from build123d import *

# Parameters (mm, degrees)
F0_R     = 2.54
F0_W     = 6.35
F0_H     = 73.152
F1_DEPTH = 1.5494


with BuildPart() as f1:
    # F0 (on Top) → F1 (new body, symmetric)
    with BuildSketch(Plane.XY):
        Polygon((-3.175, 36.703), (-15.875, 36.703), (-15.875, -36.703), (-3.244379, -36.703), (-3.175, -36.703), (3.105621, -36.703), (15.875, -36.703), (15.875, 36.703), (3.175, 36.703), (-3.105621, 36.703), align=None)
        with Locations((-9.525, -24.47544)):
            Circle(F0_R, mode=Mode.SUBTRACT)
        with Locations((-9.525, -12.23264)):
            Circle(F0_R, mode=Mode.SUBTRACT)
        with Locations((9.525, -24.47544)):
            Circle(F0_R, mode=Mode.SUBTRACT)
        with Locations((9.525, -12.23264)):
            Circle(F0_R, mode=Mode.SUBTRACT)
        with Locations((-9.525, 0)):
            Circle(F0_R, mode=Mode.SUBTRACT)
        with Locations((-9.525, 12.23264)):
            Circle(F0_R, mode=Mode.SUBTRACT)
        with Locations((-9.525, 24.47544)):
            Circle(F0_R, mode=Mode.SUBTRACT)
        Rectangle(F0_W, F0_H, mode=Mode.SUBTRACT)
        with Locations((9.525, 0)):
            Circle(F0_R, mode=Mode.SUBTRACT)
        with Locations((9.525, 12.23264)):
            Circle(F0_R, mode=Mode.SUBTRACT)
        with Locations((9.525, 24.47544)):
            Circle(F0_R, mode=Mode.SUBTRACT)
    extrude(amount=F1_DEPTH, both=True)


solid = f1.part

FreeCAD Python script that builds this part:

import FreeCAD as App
import Part
import Sketcher
from FreeCAD import Vector
Q = App.Units.Quantity

doc = App.newDocument("Part")
params = doc.addObject("Spreadsheet::Sheet", "Params")
for row, (alias, value) in enumerate([
    ("sketch1_diameter", "0.2 in"),
    ("sketch1_width", "1.25 in"),
    ("sketch1_width2", "0.25 in"),
    ("sketch1_height", "2.89 in"),
    ("sketch1_height2", "2.88 in"),
    ("pad1_length", "0.122 in"),
], start=1):
    params.set(f"A{row}", alias)
    params.set(f"B{row}", "=" + value)
    params.setAlias(f"B{row}", alias)

body = doc.addObject("PartDesign::Body", "Body")

# Sketch on XY plane
sketch1 = body.newObject("Sketcher::SketchObject", "Sketch")
sketch1.AttachmentSupport = (doc.getObject("XY_Plane"), [""])
sketch1.MapMode = "FlatFace"
sketch1.addGeometry(Part.LineSegment(Vector(-15.875, 36.703, 0), Vector(-15.875, -36.703, 0)), False)
sketch1.addGeometry(Part.LineSegment(Vector(-15.875, -36.703, 0), Vector(15.875, -36.703, 0)), False)
sketch1.addGeometry(Part.LineSegment(Vector(15.875, -36.703, 0), Vector(15.875, 36.703, 0)), False)
sketch1.addGeometry(Part.LineSegment(Vector(15.875, 36.703, 0), Vector(-15.875, 36.703, 0)), False)
sketch1.addGeometry(Part.Circle(Vector(-9.525, -24.47544, 0), Vector(0, 0, 1), 2.54), False)
sketch1.addGeometry(Part.Circle(Vector(-9.525, -12.23264, 0), Vector(0, 0, 1), 2.54), False)
sketch1.addGeometry(Part.Circle(Vector(9.525, -24.47544, 0), Vector(0, 0, 1), 2.54), False)
sketch1.addGeometry(Part.Circle(Vector(9.525, -12.23264, 0), Vector(0, 0, 1), 2.54), False)
sketch1.addGeometry(Part.Circle(Vector(-9.525, 0, 0), Vector(0, 0, 1), 2.54), False)
sketch1.addGeometry(Part.Circle(Vector(-9.525, 12.23264, 0), Vector(0, 0, 1), 2.54), False)
sketch1.addGeometry(Part.LineSegment(Vector(3.175, -36.576, 0), Vector(-3.175, -36.576, 0)), False)
sketch1.addGeometry(Part.LineSegment(Vector(-3.175, -36.576, 0), Vector(-3.175, 36.576, 0)), False)
sketch1.addGeometry(Part.LineSegment(Vector(-3.175, 36.576, 0), Vector(3.175, 36.576, 0)), False)
sketch1.addGeometry(Part.LineSegment(Vector(3.175, 36.576, 0), Vector(3.175, -36.576, 0)), False)
sketch1.addGeometry(Part.Circle(Vector(-9.525, 24.47544, 0), Vector(0, 0, 1), 2.54), False)
sketch1.addGeometry(Part.Circle(Vector(9.525, 0, 0), Vector(0, 0, 1), 2.54), False)
sketch1.addGeometry(Part.Circle(Vector(9.525, 12.23264, 0), Vector(0, 0, 1), 2.54), False)
sketch1.addGeometry(Part.Circle(Vector(9.525, 24.47544, 0), Vector(0, 0, 1), 2.54), False)
sketch1.addConstraint(Sketcher.Constraint("Coincident", 0, 2, 1, 1))
sketch1.addConstraint(Sketcher.Constraint("Coincident", 1, 2, 2, 1))
sketch1.addConstraint(Sketcher.Constraint("Coincident", 2, 2, 3, 1))
sketch1.addConstraint(Sketcher.Constraint("Coincident", 3, 2, 0, 1))
sketch1.addConstraint(Sketcher.Constraint("Coincident", 10, 2, 11, 1))
sketch1.addConstraint(Sketcher.Constraint("Coincident", 11, 2, 12, 1))
sketch1.addConstraint(Sketcher.Constraint("Coincident", 12, 2, 13, 1))
sketch1.addConstraint(Sketcher.Constraint("Coincident", 13, 2, 10, 1))
sketch1.addConstraint(Sketcher.Constraint("Vertical", 0))
sketch1.addConstraint(Sketcher.Constraint("Horizontal", 1))
sketch1.addConstraint(Sketcher.Constraint("Vertical", 2))
sketch1.addConstraint(Sketcher.Constraint("Horizontal", 3))
sketch1.addConstraint(Sketcher.Constraint("Horizontal", 10))
sketch1.addConstraint(Sketcher.Constraint("Vertical", 11))
sketch1.addConstraint(Sketcher.Constraint("Horizontal", 12))
sketch1.addConstraint(Sketcher.Constraint("Vertical", 13))
sketch1.addConstraint(Sketcher.Constraint("Equal", 4, 5))
sketch1.addConstraint(Sketcher.Constraint("Equal", 5, 6))
sketch1.addConstraint(Sketcher.Constraint("Equal", 6, 7))
sketch1.addConstraint(Sketcher.Constraint("Equal", 7, 8))
sketch1.addConstraint(Sketcher.Constraint("Equal", 8, 9))
sketch1.addConstraint(Sketcher.Constraint("Equal", 9, 14))
sketch1.addConstraint(Sketcher.Constraint("Equal", 14, 15))
sketch1.addConstraint(Sketcher.Constraint("Equal", 15, 16))
sketch1.addConstraint(Sketcher.Constraint("Equal", 16, 17))
sketch1.addConstraint(Sketcher.Constraint("Symmetric", 7, 3, 9, 3, -1, 1))
sketch1.addConstraint(Sketcher.Constraint("Symmetric", 6, 3, 14, 3, -1, 1))
sketch1.addConstraint(Sketcher.Constraint("Symmetric", 8, 3, 15, 3, -1, 1))
sketch1.addConstraint(Sketcher.Constraint("Symmetric", 5, 3, 16, 3, -1, 1))
sketch1.addConstraint(Sketcher.Constraint("Symmetric", 4, 3, 17, 3, -1, 1))
sketch1.addConstraint(Sketcher.Constraint("Symmetric", 0, 2, 2, 2, -1, 1))
sketch1.addConstraint(Sketcher.Constraint("Symmetric", 10, 2, 12, 2, -1, 1))
sketch1.addConstraint(Sketcher.Constraint("Symmetric", 4, 3, 6, 3, -2))
sketch1.addConstraint(Sketcher.Constraint("Symmetric", 5, 3, 7, 3, -2))
sketch1.addConstraint(Sketcher.Constraint("PointOnObject", 8, 3, -1))
sketch1.addConstraint(Sketcher.Constraint("Vertical", 4, 3, 5, 3))
sketch1.addConstraint(Sketcher.Constraint("Vertical", 5, 3, 8, 3))
sketch1.addConstraint(Sketcher.Constraint("Diameter", 4, Q("0.2 in")))
sketch1.addConstraint(Sketcher.Constraint("DistanceX", 0, 2, 6, 3, Q("1 in")))
sketch1.addConstraint(Sketcher.Constraint("DistanceX", 1, 1, 1, 2, Q("1.25 in")))
sketch1.addConstraint(Sketcher.Constraint("DistanceX", 10, 2, 10, 1, Q("0.25 in")))
sketch1.addConstraint(Sketcher.Constraint("DistanceY", 0, 2, 0, 1, Q("2.89 in")))
sketch1.addConstraint(Sketcher.Constraint("DistanceY", 11, 1, 11, 2, Q("2.88 in")))
sketch1.addConstraint(Sketcher.Constraint("DistanceY", 4, 3, 5, 3, Q("0.482 in")))
sketch1.addConstraint(Sketcher.Constraint("DistanceY", 4, 3, -1, 1, Q("0.9636 in")))
sketch1.setExpression("Constraints[37]", "Params.sketch1_diameter")
sketch1.setExpression("Constraints[39]", "Params.sketch1_width")
sketch1.setExpression("Constraints[40]", "Params.sketch1_width2")
sketch1.setExpression("Constraints[41]", "Params.sketch1_height")
sketch1.setExpression("Constraints[42]", "Params.sketch1_height2")
pad1 = body.newObject("PartDesign::Pad", "Pad")
pad1.Profile = sketch1
pad1.setExpression("Length", "Params.pad1_length")
pad1.Midplane = True

doc.recompute()
